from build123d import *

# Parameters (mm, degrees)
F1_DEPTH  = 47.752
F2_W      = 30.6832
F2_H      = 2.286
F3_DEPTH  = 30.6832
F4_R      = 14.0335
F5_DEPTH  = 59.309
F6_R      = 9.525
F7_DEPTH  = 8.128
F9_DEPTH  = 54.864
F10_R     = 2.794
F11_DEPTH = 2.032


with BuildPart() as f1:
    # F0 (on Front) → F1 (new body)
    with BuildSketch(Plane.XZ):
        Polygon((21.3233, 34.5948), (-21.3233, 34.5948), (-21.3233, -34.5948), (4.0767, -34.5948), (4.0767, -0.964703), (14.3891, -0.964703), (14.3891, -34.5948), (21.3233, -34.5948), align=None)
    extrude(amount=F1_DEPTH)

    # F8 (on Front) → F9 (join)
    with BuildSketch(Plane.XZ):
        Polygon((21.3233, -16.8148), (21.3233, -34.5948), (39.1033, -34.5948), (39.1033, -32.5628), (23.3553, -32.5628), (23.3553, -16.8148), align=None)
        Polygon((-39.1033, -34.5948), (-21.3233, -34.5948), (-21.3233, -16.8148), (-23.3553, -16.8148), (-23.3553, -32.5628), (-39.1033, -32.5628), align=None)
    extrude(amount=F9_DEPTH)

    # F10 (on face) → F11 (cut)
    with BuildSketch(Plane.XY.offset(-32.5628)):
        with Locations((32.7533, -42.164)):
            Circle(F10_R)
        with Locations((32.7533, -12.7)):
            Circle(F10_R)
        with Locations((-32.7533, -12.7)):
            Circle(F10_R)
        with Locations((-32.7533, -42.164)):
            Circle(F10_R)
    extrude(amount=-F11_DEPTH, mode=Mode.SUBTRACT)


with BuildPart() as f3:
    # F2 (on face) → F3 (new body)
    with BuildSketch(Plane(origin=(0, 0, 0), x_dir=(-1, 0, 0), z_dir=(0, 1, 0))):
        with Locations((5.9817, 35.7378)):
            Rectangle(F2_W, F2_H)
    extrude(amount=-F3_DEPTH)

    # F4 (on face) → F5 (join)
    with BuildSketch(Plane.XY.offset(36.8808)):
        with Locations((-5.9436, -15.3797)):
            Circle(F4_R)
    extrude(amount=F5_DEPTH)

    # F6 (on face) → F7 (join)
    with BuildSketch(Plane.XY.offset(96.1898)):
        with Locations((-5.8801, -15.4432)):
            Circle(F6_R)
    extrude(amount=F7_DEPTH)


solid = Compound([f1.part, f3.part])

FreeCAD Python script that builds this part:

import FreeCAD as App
import Part
import Sketcher
from FreeCAD import Vector
Q = App.Units.Quantity


def add_polygon(sketch, points):
    """Adds a closed chain of lines whose ends are joined by coincident constraints."""
    first, n = sketch.GeometryCount, len(points)
    for a, b in zip(points, points[1:] + points[:1]):
        sketch.addGeometry(Part.LineSegment(App.Vector(*a, 0), App.Vector(*b, 0)), False)
    for i in range(n):
        sketch.addConstraint(Sketcher.Constraint("Coincident", first + i, 2, first + (i + 1) % n, 1))

doc = App.newDocument("Part")
body = doc.addObject("PartDesign::Body", "Body")

# Sketch on XZ plane
sketch1 = body.newObject("Sketcher::SketchObject", "Sketch")
sketch1.AttachmentSupport = (doc.getObject("XZ_Plane"), [""])
sketch1.MapMode = "FlatFace"
add_polygon(sketch1, [(21.3233, 34.5948), (-21.3233, 34.5948), (-21.3233, -34.5948), (4.0767, -34.5948), (4.0767, -0.964703), (14.3891, -0.964703), (14.3891, -34.5948), (21.3233, -34.5948)])  # lines 0-7
sketch1.addConstraint(Sketcher.Constraint("Horizontal", 0))
sketch1.addConstraint(Sketcher.Constraint("Vertical", 1))
sketch1.addConstraint(Sketcher.Constraint("Horizontal", 2))
sketch1.addConstraint(Sketcher.Constraint("Vertical", 3))
sketch1.addConstraint(Sketcher.Constraint("Horizontal", 4))
sketch1.addConstraint(Sketcher.Constraint("Vertical", 5))
sketch1.addConstraint(Sketcher.Constraint("Horizontal", 6))
sketch1.addConstraint(Sketcher.Constraint("Vertical", 7))
sketch1.addConstraint(Sketcher.Constraint("Symmetric", 0, 2, 6, 2, -1, 1))
sketch1.addConstraint(Sketcher.Constraint("Horizontal", 2, 2, 5, 2))
sketch1.addConstraint(Sketcher.Constraint("DistanceX", 2, 1, 2, 2, Q("1 in")))
sketch1.addConstraint(Sketcher.Constraint("DistanceX", 0, 2, 0, 1, Q("1.679 in")))
sketch1.addConstraint(Sketcher.Constraint("DistanceX", 4, 1, 4, 2, Q("0.406 in")))
sketch1.addConstraint(Sketcher.Constraint("DistanceY", 1, 2, 1, 1, Q("2.724 in")))
sketch1.addConstraint(Sketcher.Constraint("DistanceY", 3, 1, 3, 2, Q("33.630097 mm")))
pad1 = body.newObject("PartDesign::Pad", "Pad")
pad1.Profile = sketch1
pad1.Length = Q("1.88 in")

# Sketch on XZ plane
sketch2 = body.newObject("Sketcher::SketchObject", "Sketch001")
sketch2.AttachmentSupport = (doc.getObject("XZ_Plane"), [""])
sketch2.MapMode = "FlatFace"
add_polygon(sketch2, [(21.3233, -16.8148), (21.3233, -34.5948), (39.1033, -34.5948), (39.1033, -32.5628), (23.3553, -32.5628), (23.3553, -16.8148)])  # lines 0-5
add_polygon(sketch2, [(-39.1033, -34.5948), (-21.3233, -34.5948), (-21.3233, -16.8148), (-23.3553, -16.8148), (-23.3553, -32.5628), (-39.1033, -32.5628)])  # lines 6-11
sketch2.addConstraint(Sketcher.Constraint("Vertical", 0))
sketch2.addConstraint(Sketcher.Constraint("Horizontal", 1))
sketch2.addConstraint(Sketcher.Constraint("Vertical", 2))
sketch2.addConstraint(Sketcher.Constraint("Horizontal", 3))
sketch2.addConstraint(Sketcher.Constraint("Vertical", 4))
sketch2.addConstraint(Sketcher.Constraint("Horizontal", 5))
sketch2.addConstraint(Sketcher.Constraint("Horizontal", 6))
sketch2.addConstraint(Sketcher.Constraint("Vertical", 7))
sketch2.addConstraint(Sketcher.Constraint("Horizontal", 8))
sketch2.addConstraint(Sketcher.Constraint("Vertical", 9))
sketch2.addConstraint(Sketcher.Constraint("Horizontal", 10))
sketch2.addConstraint(Sketcher.Constraint("Vertical", 11))
sketch2.addConstraint(Sketcher.Constraint("Symmetric", 0, 2, 6, 2, -2))
sketch2.addConstraint(Sketcher.Constraint("Symmetric", 4, 2, 8, 2, -2))
sketch2.addConstraint(Sketcher.Constraint("Symmetric", 2, 2, 10, 2, -2))
sketch2.addConstraint(Sketcher.Constraint("Equal", 6, 0))
sketch2.addConstraint(Sketcher.Constraint("Equal", 8, 2))
sketch2.addConstraint(Sketcher.Constraint("DistanceX", 1, 1, 1, 2, Q("0.7 in")))
sketch2.addConstraint(Sketcher.Constraint("DistanceX", 3, 2, 3, 1, Q("0.62 in")))
sketch2.addConstraint(Sketcher.Constraint("DistanceY", 0, 2, -1, 1, Q("1.362 in")))
sketch2.addConstraint(Sketcher.Constraint("DistanceX", 6, 2, 0, 2, Q("1.679 in")))
pad2 = body.newObject("PartDesign::Pad", "Pad001")
pad2.Profile = sketch2
pad2.Length = Q("2.16 in")

# Sketch on XY plane
sketch3 = body.newObject("Sketcher::SketchObject", "Sketch002")
sketch3.AttachmentSupport = (doc.getObject("XY_Plane"), [""])
sketch3.MapMode = "FlatFace"
sketch3.AttachmentOffset = App.Placement(Vector(0, 0, -1.282 * 25.4), App.Rotation())
sketch3.addGeometry(Part.Circle(Vector(32.7533, -42.164, 0), Vector(0, 0, 1), 2.794), False)
sketch3.addGeometry(Part.Circle(Vector(32.7533, -12.7, 0), Vector(0, 0, 1), 2.794), False)
sketch3.addGeometry(Part.Circle(Vector(-32.7533, -12.7, 0), Vector(0, 0, 1), 2.794), False)
sketch3.addGeometry(Part.Circle(Vector(-32.7533, -42.164, 0), Vector(0, 0, 1), 2.794), False)
sketch3.addConstraint(Sketcher.Constraint("Equal", 0, 1))
sketch3.addConstraint(Sketcher.Constraint("Equal", 1, 2))
sketch3.addConstraint(Sketcher.Constraint("Equal", 2, 3))
sketch3.addConstraint(Sketcher.Constraint("Symmetric", 1, 3, 2, 3, -2))
sketch3.addConstraint(Sketcher.Constraint("Symmetric", 0, 3, 3, 3, -2))
sketch3.addConstraint(Sketcher.Constraint("Vertical", 0, 3, 1, 3))
sketch3.addConstraint(Sketcher.Constraint("Diameter", 0, Q("0.22 in")))
sketch3.addConstraint(Sketcher.Constraint("DistanceY", 1, 3, -1, 1, Q("0.5 in")))
sketch3.addConstraint(Sketcher.Constraint("DistanceY", 0, 3, -1, 1, Q("1.66 in")))
sketch3.addConstraint(Sketcher.Constraint("DistanceX", 2, 3, 1, 3, Q("2.579 in")))
pocket1 = body.newObject("PartDesign::Pocket", "Pocket")
pocket1.Profile = sketch3
pocket1.Length = Q("0.08 in")
body2 = doc.addObject("PartDesign::Body", "Body001")

# Sketch on XZ plane
sketch4 = body2.newObject("Sketcher::SketchObject", "Sketch003")
sketch4.AttachmentSupport = (doc.getObject("XZ_Plane001"), [""])
sketch4.MapMode = "FlatFace"
add_polygon(sketch4, [(9.3599, 36.8808), (9.3599, 34.5948), (-21.3233, 34.5948), (-21.3233, 36.8808)])  # lines 0-3
sketch4.addConstraint(Sketcher.Constraint("Vertical", 0))
sketch4.addConstraint(Sketcher.Constraint("Horizontal", 1))
sketch4.addConstraint(Sketcher.Constraint("Vertical", 2))
sketch4.addConstraint(Sketcher.Constraint("Horizontal", 3))
sketch4.addConstraint(Sketcher.Constraint("DistanceY", 0, 2, 0, 1, Q("0.09 in")))
sketch4.addConstraint(Sketcher.Constraint("DistanceX", 1, 2, 1, 1, Q("1.208 in")))
sketch4.addConstraint(Sketcher.Constraint("DistanceY", -1, 1, 0, 2, Q("1.362 in")))
sketch4.addConstraint(Sketcher.Constraint("DistanceX", -1, 1, 0, 2, Q("0.3685 in")))
pad3 = body2.newObject("PartDesign::Pad", "Pad002")
pad3.Profile = sketch4
pad3.Length = Q("1.208 in")

# Sketch on XY plane
sketch5 = body2.newObject("Sketcher::SketchObject", "Sketch004")
sketch5.AttachmentSupport = (doc.getObject("XY_Plane001"), [""])
sketch5.MapMode = "FlatFace"
sketch5.AttachmentOffset = App.Placement(Vector(0, 0, 1.452 * 25.4), App.Rotation())
sketch5.addGeometry(Part.Circle(Vector(-5.9436, -15.3797, 0), Vector(0, 0, 1), 14.0335), False)
sketch5.addConstraint(Sketcher.Constraint("Diameter", 0, Q("1.105 in")))
sketch5.addConstraint(Sketcher.Constraint("DistanceX", 0, 3, -1, 1, Q("0.234 in")))
sketch5.addConstraint(Sketcher.Constraint("DistanceY", 0, 3, -1, 1, Q("0.6055 in")))
pad4 = body2.newObject("PartDesign::Pad", "Pad003")
pad4.Profile = sketch5
pad4.Length = Q("2.335 in")

# Sketch on XY plane
sketch6 = body2.newObject("Sketcher::SketchObject", "Sketch005")
sketch6.AttachmentSupport = (doc.getObject("XY_Plane001"), [""])
sketch6.MapMode = "FlatFace"
sketch6.AttachmentOffset = App.Placement(Vector(0, 0, 3.787 * 25.4), App.Rotation())
sketch6.addGeometry(Part.Circle(Vector(-5.8801, -15.4432, 0), Vector(0, 0, 1), 9.525), False)
sketch6.addConstraint(Sketcher.Constraint("Diameter", 0, Q("0.75 in")))
sketch6.addConstraint(Sketcher.Constraint("DistanceY", 0, 3, -1, 1, Q("0.608 in")))
sketch6.addConstraint(Sketcher.Constraint("DistanceX", 0, 3, -1, 1, Q("0.2315 in")))
pad5 = body2.newObject("PartDesign::Pad", "Pad004")
pad5.Profile = sketch6
pad5.Length = Q("0.32 in")

doc.recompute()
